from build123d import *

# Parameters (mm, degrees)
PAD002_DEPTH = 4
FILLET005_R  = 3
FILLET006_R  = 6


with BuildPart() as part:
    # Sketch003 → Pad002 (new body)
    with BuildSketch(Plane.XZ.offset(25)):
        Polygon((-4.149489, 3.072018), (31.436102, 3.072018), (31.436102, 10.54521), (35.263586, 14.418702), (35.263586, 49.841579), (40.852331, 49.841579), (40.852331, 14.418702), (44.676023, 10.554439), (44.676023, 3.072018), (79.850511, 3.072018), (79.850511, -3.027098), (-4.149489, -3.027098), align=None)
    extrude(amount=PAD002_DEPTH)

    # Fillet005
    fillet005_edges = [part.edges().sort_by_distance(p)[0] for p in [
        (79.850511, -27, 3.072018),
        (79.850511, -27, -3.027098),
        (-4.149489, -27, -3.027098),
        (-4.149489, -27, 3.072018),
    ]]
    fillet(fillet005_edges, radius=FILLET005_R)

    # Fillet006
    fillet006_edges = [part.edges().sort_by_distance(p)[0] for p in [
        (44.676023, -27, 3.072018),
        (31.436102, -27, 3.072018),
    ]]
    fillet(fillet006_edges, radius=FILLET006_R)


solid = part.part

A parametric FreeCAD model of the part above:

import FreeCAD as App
import Part
import Sketcher
from FreeCAD import Vector


def edges_at(feature, points):
    """Names of the edges that pass closest to the given points."""
    edges = feature.Shape.Edges
    near = lambda p: min(range(len(edges)), key=lambda i: edges[i].distToShape(Part.Vertex(*p))[0])
    return sorted({f"Edge{near(p) + 1}" for p in points})

doc = App.newDocument("Part")
body = doc.addObject("PartDesign::Body", "Body")

# Sketch on XZ plane
sketch1 = doc.addObject("Sketcher::SketchObject", "Sketch")
body.addObject(sketch1)
sketch1.AttachmentSupport = (doc.XZ_Plane, [""])
sketch1.MapMode = "FlatFace"
sketch1.AttachmentOffset = App.Placement(Vector(0, 0, 25), App.Rotation())
sketch1.addGeometry(Part.LineSegment(Vector(31, 3, 0), Vector(-4, 3, 0)), False)
sketch1.addGeometry(Part.LineSegment(Vector(-4, 3, 0), Vector(-4, -3, 0)), False)
sketch1.addGeometry(Part.LineSegment(Vector(-4, -3, 0), Vector(80, -3, 0)), False)
sketch1.addGeometry(Part.LineSegment(Vector(80, -3, 0), Vector(80, 3, 0)), False)
sketch1.addGeometry(Part.LineSegment(Vector(80, 3, 0), Vector(45, 3, 0)), False)
sketch1.addGeometry(Part.LineSegment(Vector(45, 3, 0), Vector(45, 11, 0)), False)
sketch1.addGeometry(Part.LineSegment(Vector(45, 11, 0), Vector(41, 14, 0)), False)
sketch1.addGeometry(Part.LineSegment(Vector(41, 14, 0), Vector(41, 50, 0)), False)
sketch1.addGeometry(Part.LineSegment(Vector(41, 50, 0), Vector(35, 50, 0)), False)
sketch1.addGeometry(Part.LineSegment(Vector(35, 50, 0), Vector(35, 14, 0)), False)
sketch1.addGeometry(Part.LineSegment(Vector(35, 14, 0), Vector(31, 11, 0)), False)
sketch1.addGeometry(Part.LineSegment(Vector(31, 11, 0), Vector(31, 3, 0)), False)
sketch1.addConstraint(Sketcher.Constraint("Coincident", 0, 2, 1, 1))
sketch1.addConstraint(Sketcher.Constraint("Coincident", 1, 2, 2, 1))
sketch1.addConstraint(Sketcher.Constraint("Coincident", 2, 2, 3, 1))
sketch1.addConstraint(Sketcher.Constraint("Coincident", 3, 2, 4, 1))
sketch1.addConstraint(Sketcher.Constraint("Coincident", 4, 2, 5, 1))
sketch1.addConstraint(Sketcher.Constraint("Coincident", 5, 2, 6, 1))
sketch1.addConstraint(Sketcher.Constraint("Coincident", 6, 2, 7, 1))
sketch1.addConstraint(Sketcher.Constraint("Coincident", 7, 2, 8, 1))
sketch1.addConstraint(Sketcher.Constraint("Coincident", 8, 2, 9, 1))
sketch1.addConstraint(Sketcher.Constraint("Coincident", 9, 2, 10, 1))
sketch1.addConstraint(Sketcher.Constraint("Coincident", 10, 2, 11, 1))
sketch1.addConstraint(Sketcher.Constraint("Coincident", 11, 2, 0, 1))
sketch1.addConstraint(Sketcher.Constraint("Horizontal", 0))
sketch1.addConstraint(Sketcher.Constraint("Vertical", 1))
sketch1.addConstraint(Sketcher.Constraint("Horizontal", 2))
sketch1.addConstraint(Sketcher.Constraint("Vertical", 3))
sketch1.addConstraint(Sketcher.Constraint("Horizontal", 4))
sketch1.addConstraint(Sketcher.Constraint("Vertical", 5))
sketch1.addConstraint(Sketcher.Constraint("Vertical", 7))
sketch1.addConstraint(Sketcher.Constraint("Horizontal", 8))
sketch1.addConstraint(Sketcher.Constraint("Vertical", 9))
sketch1.addConstraint(Sketcher.Constraint("Vertical", 11))
sketch1.addConstraint(Sketcher.Constraint("Horizontal", 0, 2, 3, 2))
sketch1.addConstraint(Sketcher.Constraint("Horizontal", 6, 2, 9, 2))
sketch1.addConstraint(Sketcher.Constraint("DistanceX", 2, 1, 2, 2, 84.0))
sketch1.addConstraint(Sketcher.Constraint("DistanceX", 0, 2, 0, 1, 35.585591))
sketch1.addConstraint(Sketcher.Constraint("DistanceY", 5, 1, 5, 2, 7.482421))
sketch1.addConstraint(Sketcher.Constraint("DistanceY", 1, 2, -1, 1, 3.027098))
sketch1.addConstraint(Sketcher.Constraint("DistanceY", 2, 2, 6, 2, 17.4458))
sketch1.addConstraint(Sketcher.Constraint("Distance", 6, 5.436281))
sketch1.addConstraint(Sketcher.Constraint("Distance", 10, 5.44551))
sketch1.addConstraint(Sketcher.Constraint("DistanceX", 4, 2, 4, 1, 35.174488))
sketch1.addConstraint(Sketcher.Constraint("DistanceX", 8, 2, 8, 1, 5.588745))
sketch1.addConstraint(Sketcher.Constraint("DistanceY", 1, 2, 1, 1, 6.099116))
sketch1.addConstraint(Sketcher.Constraint("DistanceY", 7, 1, 7, 2, 35.422877))
sketch1.addConstraint(Sketcher.Constraint("DistanceX", 0, 2, -1, 1, 4.149489))
pad1 = doc.addObject("PartDesign::Pad", "Pad")
body.addObject(pad1)
pad1.Profile = sketch1
pad1.Length = 4
doc.recompute()

fillet = doc.addObject("PartDesign::Fillet", "Fillet")
body.addObject(fillet)
fillet.Base = (pad1, edges_at(pad1, [
    (79.851, -27, 3.072),
    (79.851, -27, -3.027),
    (-4.149, -27, -3.027),
    (-4.149, -27, 3.072),
]))
fillet.Radius = 3
doc.recompute()

fillet2 = doc.addObject("PartDesign::Fillet", "Fillet001")
body.addObject(fillet2)
fillet2.Base = (fillet, edges_at(fillet, [(44.676, -27, 3.072), (31.436, -27, 3.072)]))
fillet2.Radius = 6

doc.recompute()
